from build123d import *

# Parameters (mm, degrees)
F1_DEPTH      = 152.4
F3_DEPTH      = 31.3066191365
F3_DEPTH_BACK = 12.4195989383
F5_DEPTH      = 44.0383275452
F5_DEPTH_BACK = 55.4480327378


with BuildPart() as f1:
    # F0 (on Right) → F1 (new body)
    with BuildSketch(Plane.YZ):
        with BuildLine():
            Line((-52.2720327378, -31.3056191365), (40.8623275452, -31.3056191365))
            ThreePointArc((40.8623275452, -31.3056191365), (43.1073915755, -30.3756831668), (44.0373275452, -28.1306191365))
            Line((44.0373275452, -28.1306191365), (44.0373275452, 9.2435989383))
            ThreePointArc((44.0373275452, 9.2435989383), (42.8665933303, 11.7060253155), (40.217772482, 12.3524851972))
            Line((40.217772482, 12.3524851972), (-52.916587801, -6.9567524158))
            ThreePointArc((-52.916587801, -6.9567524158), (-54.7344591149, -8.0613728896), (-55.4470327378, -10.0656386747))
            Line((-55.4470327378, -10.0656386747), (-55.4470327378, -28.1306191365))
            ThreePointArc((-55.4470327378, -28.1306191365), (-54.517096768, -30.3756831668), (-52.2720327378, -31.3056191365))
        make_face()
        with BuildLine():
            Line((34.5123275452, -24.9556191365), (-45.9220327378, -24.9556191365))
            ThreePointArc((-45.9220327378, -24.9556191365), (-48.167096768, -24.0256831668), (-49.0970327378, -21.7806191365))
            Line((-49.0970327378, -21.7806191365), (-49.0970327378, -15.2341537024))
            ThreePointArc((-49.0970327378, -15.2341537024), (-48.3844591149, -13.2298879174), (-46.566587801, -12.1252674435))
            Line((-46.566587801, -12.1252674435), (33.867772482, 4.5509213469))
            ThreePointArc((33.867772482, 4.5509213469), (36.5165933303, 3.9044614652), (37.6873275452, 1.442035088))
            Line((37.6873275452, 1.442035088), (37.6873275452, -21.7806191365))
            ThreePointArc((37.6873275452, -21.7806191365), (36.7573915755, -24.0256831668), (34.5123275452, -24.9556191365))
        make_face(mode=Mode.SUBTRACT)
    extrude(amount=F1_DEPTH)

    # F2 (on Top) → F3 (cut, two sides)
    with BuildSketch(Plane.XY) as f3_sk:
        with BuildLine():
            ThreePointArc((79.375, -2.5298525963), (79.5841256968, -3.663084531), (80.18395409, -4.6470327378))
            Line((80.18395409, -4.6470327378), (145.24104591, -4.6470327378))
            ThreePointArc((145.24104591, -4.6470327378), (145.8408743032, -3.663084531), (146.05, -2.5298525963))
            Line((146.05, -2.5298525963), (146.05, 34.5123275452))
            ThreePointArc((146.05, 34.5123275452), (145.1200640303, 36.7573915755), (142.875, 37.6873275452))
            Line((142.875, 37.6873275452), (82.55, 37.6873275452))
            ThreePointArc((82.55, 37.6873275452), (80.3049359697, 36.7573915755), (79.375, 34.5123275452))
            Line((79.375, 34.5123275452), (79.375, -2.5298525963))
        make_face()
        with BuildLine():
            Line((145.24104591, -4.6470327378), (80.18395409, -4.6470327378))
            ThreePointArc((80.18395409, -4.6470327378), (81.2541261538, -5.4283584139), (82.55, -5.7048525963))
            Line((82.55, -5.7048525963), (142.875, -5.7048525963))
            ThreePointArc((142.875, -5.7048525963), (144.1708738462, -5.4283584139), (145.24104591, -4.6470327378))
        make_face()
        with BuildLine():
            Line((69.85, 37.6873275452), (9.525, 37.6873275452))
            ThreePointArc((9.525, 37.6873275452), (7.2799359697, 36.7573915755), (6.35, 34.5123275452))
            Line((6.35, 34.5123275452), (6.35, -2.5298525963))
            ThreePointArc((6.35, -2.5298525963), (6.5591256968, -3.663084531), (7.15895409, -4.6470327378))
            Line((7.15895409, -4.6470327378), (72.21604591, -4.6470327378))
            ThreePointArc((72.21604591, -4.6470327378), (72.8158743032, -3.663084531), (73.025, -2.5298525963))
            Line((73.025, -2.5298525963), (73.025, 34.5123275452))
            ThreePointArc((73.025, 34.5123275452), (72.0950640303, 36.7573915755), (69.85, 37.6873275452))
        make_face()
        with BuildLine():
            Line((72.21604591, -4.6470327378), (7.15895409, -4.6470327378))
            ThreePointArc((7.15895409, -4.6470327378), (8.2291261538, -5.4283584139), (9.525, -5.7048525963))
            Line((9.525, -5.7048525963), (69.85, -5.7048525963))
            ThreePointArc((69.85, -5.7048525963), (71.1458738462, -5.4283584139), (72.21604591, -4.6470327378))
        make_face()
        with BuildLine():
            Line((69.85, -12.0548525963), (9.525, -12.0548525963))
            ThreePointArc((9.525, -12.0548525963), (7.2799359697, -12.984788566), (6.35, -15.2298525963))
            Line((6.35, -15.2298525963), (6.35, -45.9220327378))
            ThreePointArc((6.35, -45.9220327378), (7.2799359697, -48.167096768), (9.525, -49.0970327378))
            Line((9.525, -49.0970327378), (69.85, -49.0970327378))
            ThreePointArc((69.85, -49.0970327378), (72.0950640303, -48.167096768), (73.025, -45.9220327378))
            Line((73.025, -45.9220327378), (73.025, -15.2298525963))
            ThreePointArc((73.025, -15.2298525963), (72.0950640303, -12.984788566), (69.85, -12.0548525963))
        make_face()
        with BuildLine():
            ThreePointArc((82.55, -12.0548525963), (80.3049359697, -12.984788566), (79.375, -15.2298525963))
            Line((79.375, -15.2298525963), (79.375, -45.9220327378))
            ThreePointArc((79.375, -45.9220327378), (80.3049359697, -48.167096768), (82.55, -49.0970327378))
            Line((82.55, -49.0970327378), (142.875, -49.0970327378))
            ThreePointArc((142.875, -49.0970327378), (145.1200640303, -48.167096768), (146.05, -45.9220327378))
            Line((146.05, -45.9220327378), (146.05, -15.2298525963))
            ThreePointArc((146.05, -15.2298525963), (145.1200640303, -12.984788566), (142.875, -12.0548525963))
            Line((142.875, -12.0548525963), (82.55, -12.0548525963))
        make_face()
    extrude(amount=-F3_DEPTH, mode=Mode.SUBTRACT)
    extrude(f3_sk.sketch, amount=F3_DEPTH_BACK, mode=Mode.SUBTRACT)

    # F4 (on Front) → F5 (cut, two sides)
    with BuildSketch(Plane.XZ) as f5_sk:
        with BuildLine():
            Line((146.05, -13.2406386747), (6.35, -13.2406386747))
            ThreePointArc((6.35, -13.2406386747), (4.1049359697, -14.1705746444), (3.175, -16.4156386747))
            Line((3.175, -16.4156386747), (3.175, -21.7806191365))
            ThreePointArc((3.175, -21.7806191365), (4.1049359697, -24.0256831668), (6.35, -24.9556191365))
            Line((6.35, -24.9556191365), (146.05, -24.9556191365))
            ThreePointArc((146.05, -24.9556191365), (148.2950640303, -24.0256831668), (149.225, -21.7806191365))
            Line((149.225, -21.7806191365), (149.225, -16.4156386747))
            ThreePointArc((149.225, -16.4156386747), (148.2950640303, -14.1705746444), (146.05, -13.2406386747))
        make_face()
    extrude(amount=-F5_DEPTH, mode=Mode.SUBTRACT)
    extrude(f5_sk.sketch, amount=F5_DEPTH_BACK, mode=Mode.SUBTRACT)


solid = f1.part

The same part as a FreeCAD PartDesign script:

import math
import FreeCAD as App
import Part
import Sketcher
Q = App.Units.Quantity

doc = App.newDocument("Part")
body = doc.addObject("PartDesign::Body", "Body")

# Sketch on YZ plane
sketch1 = body.newObject("Sketcher::SketchObject", "Sketch")
sketch1.AttachmentSupport = (doc.getObject("YZ_Plane"), [""])
sketch1.MapMode = "FlatFace"
sketch1.addGeometry(Part.LineSegment(App.Vector(-52.272033, -31.305619, 0), App.Vector(40.862328, -31.305619, 0)), False)
sketch1.addGeometry(Part.ArcOfCircle(Part.Circle(App.Vector(40.862328, -28.130619, 0), App.Vector(0, 0, 1), 3.175), math.radians(-90), math.radians(0)), False)
sketch1.addGeometry(Part.LineSegment(App.Vector(44.037328, -28.130619, 0), App.Vector(44.037328, 9.243599, 0)), False)
sketch1.addGeometry(Part.ArcOfCircle(Part.Circle(App.Vector(40.862328, 9.243599, 0), App.Vector(0, 0, 1), 3.175), math.radians(0), math.radians(101.713)), False)
sketch1.addGeometry(Part.LineSegment(App.Vector(40.217772, 12.352485, 0), App.Vector(-52.916588, -6.956752, 0)), False)
sketch1.addGeometry(Part.ArcOfCircle(Part.Circle(App.Vector(-52.272033, -10.065639, 0), App.Vector(0, 0, 1), 3.175), math.radians(101.713), math.radians(180)), False)
sketch1.addGeometry(Part.LineSegment(App.Vector(-55.447033, -10.065639, 0), App.Vector(-55.447033, -28.130619, 0)), False)
sketch1.addGeometry(Part.ArcOfCircle(Part.Circle(App.Vector(-52.272033, -28.130619, 0), App.Vector(0, 0, 1), 3.175), math.radians(180), math.radians(270)), False)
sketch1.addGeometry(Part.ArcOfCircle(Part.Circle(App.Vector(34.512328, -21.780619, 0), App.Vector(0, 0, 1), 3.175), math.radians(-90), math.radians(0)), False)
sketch1.addGeometry(Part.LineSegment(App.Vector(34.512328, -24.955619, 0), App.Vector(-45.922033, -24.955619, 0)), False)
sketch1.addGeometry(Part.ArcOfCircle(Part.Circle(App.Vector(-45.922033, -21.780619, 0), App.Vector(0, 0, 1), 3.175), math.radians(-180), math.radians(-90)), False)
sketch1.addGeometry(Part.LineSegment(App.Vector(-49.097033, -21.780619, 0), App.Vector(-49.097033, -15.234154, 0)), False)
sketch1.addGeometry(Part.ArcOfCircle(Part.Circle(App.Vector(-45.922033, -15.234154, 0), App.Vector(0, 0, 1), 3.175), math.radians(101.713), math.radians(180)), False)
sketch1.addGeometry(Part.LineSegment(App.Vector(-46.566588, -12.125267, 0), App.Vector(33.867772, 4.550921, 0)), False)
sketch1.addGeometry(Part.ArcOfCircle(Part.Circle(App.Vector(34.512328, 1.442035, 0), App.Vector(0, 0, 1), 3.175), math.radians(0), math.radians(101.713)), False)
sketch1.addGeometry(Part.LineSegment(App.Vector(37.687328, 1.442035, 0), App.Vector(37.687328, -21.780619, 0)), False)
sketch1.addConstraint(Sketcher.Constraint("Tangent", 0, 2, 1, 1))
sketch1.addConstraint(Sketcher.Constraint("Tangent", 1, 2, 2, 1))
sketch1.addConstraint(Sketcher.Constraint("Tangent", 2, 2, 3, 1))
sketch1.addConstraint(Sketcher.Constraint("Tangent", 3, 2, 4, 1))
sketch1.addConstraint(Sketcher.Constraint("Tangent", 4, 2, 5, 1))
sketch1.addConstraint(Sketcher.Constraint("Tangent", 5, 2, 6, 1))
sketch1.addConstraint(Sketcher.Constraint("Tangent", 6, 2, 7, 1))
sketch1.addConstraint(Sketcher.Constraint("Tangent", 7, 2, 0, 1))
sketch1.addConstraint(Sketcher.Constraint("Tangent", 8, 1, 9, 1))
sketch1.addConstraint(Sketcher.Constraint("Tangent", 9, 2, 10, 2))
sketch1.addConstraint(Sketcher.Constraint("Tangent", 10, 1, 11, 1))
sketch1.addConstraint(Sketcher.Constraint("Tangent", 11, 2, 12, 2))
sketch1.addConstraint(Sketcher.Constraint("Tangent", 12, 1, 13, 1))
sketch1.addConstraint(Sketcher.Constraint("Tangent", 13, 2, 14, 2))
sketch1.addConstraint(Sketcher.Constraint("Tangent", 14, 1, 15, 1))
sketch1.addConstraint(Sketcher.Constraint("Tangent", 15, 2, 8, 2))
sketch1.addConstraint(Sketcher.Constraint("Horizontal", 0))
sketch1.addConstraint(Sketcher.Constraint("Vertical", 2))
sketch1.addConstraint(Sketcher.Constraint("Vertical", 6))
sketch1.addConstraint(Sketcher.Constraint("Horizontal", 9))
sketch1.addConstraint(Sketcher.Constraint("Vertical", 11))
sketch1.addConstraint(Sketcher.Constraint("Vertical", 15))
sketch1.addConstraint(Sketcher.Constraint("Equal", 1, 3))
sketch1.addConstraint(Sketcher.Constraint("Equal", 3, 5))
sketch1.addConstraint(Sketcher.Constraint("Equal", 5, 7))
sketch1.addConstraint(Sketcher.Constraint("Equal", 7, 8))
sketch1.addConstraint(Sketcher.Constraint("Equal", 8, 10))
sketch1.addConstraint(Sketcher.Constraint("Equal", 10, 12))
sketch1.addConstraint(Sketcher.Constraint("Equal", 12, 14))
sketch1.addConstraint(Sketcher.Constraint("Parallel", 4, 13))
sketch1.addConstraint(Sketcher.Constraint("Radius", 1, Q("0.125 in")))
sketch1.addConstraint(Sketcher.Constraint("DistanceX", 8, 3, 1, 3, Q("0.25 in")))
sketch1.addConstraint(Sketcher.Constraint("DistanceY", 1, 3, 8, 3, Q("0.25 in")))
sketch1.addConstraint(Sketcher.Constraint("DistanceX", 7, 3, 10, 3, Q("0.25 in")))
sketch1.addConstraint(Sketcher.Constraint("DistanceX", 0, 1, 0, 2, Q("93.13436 mm")))
sketch1.addConstraint(Sketcher.Constraint("DistanceY", 2, 1, 2, 2, Q("37.374218 mm")))
sketch1.addConstraint(Sketcher.Constraint("DistanceY", 6, 2, 6, 1, Q("18.06498 mm")))
sketch1.addConstraint(Sketcher.Constraint("DistanceY", -1, 1, 3, 3, Q("9.243599 mm")))
sketch1.addConstraint(Sketcher.Constraint("DistanceY", 12, 3, 4, 2, Q("8.277401 mm")))
sketch1.addConstraint(Sketcher.Constraint("DistanceX", -1, 1, 1, 3, Q("40.862328 mm")))
pad1 = body.newObject("PartDesign::Pad", "Pad")
pad1.Profile = sketch1
pad1.Length = Q("6 in")

# Sketch on XY plane
sketch2 = body.newObject("Sketcher::SketchObject", "Sketch001")
sketch2.AttachmentSupport = (doc.getObject("XY_Plane"), [""])
sketch2.MapMode = "FlatFace"
sketch2.addGeometry(Part.ArcOfCircle(Part.Circle(App.Vector(82.55, -2.529853, 0), App.Vector(0, 0, 1), 3.175), math.radians(180), math.radians(221.822748)), False)
sketch2.addGeometry(Part.ArcOfCircle(Part.Circle(App.Vector(82.55, -2.529853, 0), App.Vector(0, 0, 1), 3.175), math.radians(-138.177252), math.radians(-90)), False)
sketch2.addGeometry(Part.LineSegment(App.Vector(82.55, -5.704853, 0), App.Vector(142.875, -5.704853, 0)), False)
sketch2.addGeometry(Part.ArcOfCircle(Part.Circle(App.Vector(142.875, -2.529853, 0), App.Vector(0, 0, 1), 3.175), math.radians(-90), math.radians(-41.822748)), False)
sketch2.addGeometry(Part.ArcOfCircle(Part.Circle(App.Vector(142.875, -2.529853, 0), App.Vector(0, 0, 1), 3.175), math.radians(-41.822748), math.radians(0)), False)
sketch2.addGeometry(Part.LineSegment(App.Vector(146.05, -2.529853, 0), App.Vector(146.05, 34.512328, 0)), False)
sketch2.addGeometry(Part.ArcOfCircle(Part.Circle(App.Vector(142.875, 34.512328, 0), App.Vector(0, 0, 1), 3.175), math.radians(0), math.radians(90)), False)
sketch2.addGeometry(Part.LineSegment(App.Vector(142.875, 37.687328, 0), App.Vector(82.55, 37.687328, 0)), False)
sketch2.addGeometry(Part.ArcOfCircle(Part.Circle(App.Vector(82.55, 34.512328, 0), App.Vector(0, 0, 1), 3.175), math.radians(90), math.radians(180)), False)
sketch2.addGeometry(Part.LineSegment(App.Vector(79.375, 34.512328, 0), App.Vector(79.375, -2.529853, 0)), False)
sketch2.addGeometry(Part.LineSegment(App.Vector(69.85, 37.687328, 0), App.Vector(9.525, 37.687328, 0)), False)
sketch2.addGeometry(Part.ArcOfCircle(Part.Circle(App.Vector(9.525, 34.512328, 0), App.Vector(0, 0, 1), 3.175), math.radians(90), math.radians(180)), False)
sketch2.addGeometry(Part.LineSegment(App.Vector(6.35, 34.512328, 0), App.Vector(6.35, -2.529853, 0)), False)
sketch2.addGeometry(Part.ArcOfCircle(Part.Circle(App.Vector(9.525, -2.529853, 0), App.Vector(0, 0, 1), 3.175), math.radians(180), math.radians(221.822748)), False)
sketch2.addGeometry(Part.ArcOfCircle(Part.Circle(App.Vector(9.525, -2.529853, 0), App.Vector(0, 0, 1), 3.175), math.radians(-138.177252), math.radians(-90)), False)
sketch2.addGeometry(Part.LineSegment(App.Vector(9.525, -5.704853, 0), App.Vector(69.85, -5.704853, 0)), False)
sketch2.addGeometry(Part.ArcOfCircle(Part.Circle(App.Vector(69.85, -2.529853, 0), App.Vector(0, 0, 1), 3.175), math.radians(-90), math.radians(-41.822748)), False)
sketch2.addGeometry(Part.ArcOfCircle(Part.Circle(App.Vector(69.85, -2.529853, 0), App.Vector(0, 0, 1), 3.175), math.radians(-41.822748), math.radians(0)), False)
sketch2.addGeometry(Part.LineSegment(App.Vector(73.025, -2.529853, 0), App.Vector(73.025, 34.512328, 0)), False)
sketch2.addGeometry(Part.ArcOfCircle(Part.Circle(App.Vector(69.85, 34.512328, 0), App.Vector(0, 0, 1), 3.175), math.radians(0), math.radians(90)), False)
sketch2.addGeometry(Part.LineSegment(App.Vector(69.85, -12.054853, 0), App.Vector(9.525, -12.054853, 0)), False)
sketch2.addGeometry(Part.ArcOfCircle(Part.Circle(App.Vector(9.525, -15.229853, 0), App.Vector(0, 0, 1), 3.175), math.radians(90), math.radians(180)), False)
sketch2.addGeometry(Part.LineSegment(App.Vector(6.35, -15.229853, 0), App.Vector(6.35, -45.922033, 0)), False)
sketch2.addGeometry(Part.ArcOfCircle(Part.Circle(App.Vector(9.525, -45.922033, 0), App.Vector(0, 0, 1), 3.175), math.radians(180), math.radians(270)), False)
sketch2.addGeometry(Part.LineSegment(App.Vector(9.525, -49.097033, 0), App.Vector(69.85, -49.097033, 0)), False)
sketch2.addGeometry(Part.ArcOfCircle(Part.Circle(App.Vector(69.85, -45.922033, 0), App.Vector(0, 0, 1), 3.175), math.radians(-90), math.radians(0)), False)
sketch2.addGeometry(Part.LineSegment(App.Vector(73.025, -45.922033, 0), App.Vector(73.025, -15.229853, 0)), False)
sketch2.addGeometry(Part.ArcOfCircle(Part.Circle(App.Vector(69.85, -15.229853, 0), App.Vector(0, 0, 1), 3.175), math.radians(0), math.radians(90)), False)
sketch2.addGeometry(Part.ArcOfCircle(Part.Circle(App.Vector(82.55, -15.229853, 0), App.Vector(0, 0, 1), 3.175), math.radians(90), math.radians(180)), False)
sketch2.addGeometry(Part.LineSegment(App.Vector(79.375, -15.229853, 0), App.Vector(79.375, -45.922033, 0)), False)
sketch2.addGeometry(Part.ArcOfCircle(Part.Circle(App.Vector(82.55, -45.922033, 0), App.Vector(0, 0, 1), 3.175), math.radians(180), math.radians(270)), False)
sketch2.addGeometry(Part.LineSegment(App.Vector(82.55, -49.097033, 0), App.Vector(142.875, -49.097033, 0)), False)
sketch2.addGeometry(Part.ArcOfCircle(Part.Circle(App.Vector(142.875, -45.922033, 0), App.Vector(0, 0, 1), 3.175), math.radians(-90), math.radians(0)), False)
sketch2.addGeometry(Part.LineSegment(App.Vector(146.05, -45.922033, 0), App.Vector(146.05, -15.229853, 0)), False)
sketch2.addGeometry(Part.ArcOfCircle(Part.Circle(App.Vector(142.875, -15.229853, 0), App.Vector(0, 0, 1), 3.175), math.radians(0), math.radians(90)), False)
sketch2.addGeometry(Part.LineSegment(App.Vector(142.875, -12.054853, 0), App.Vector(82.55, -12.054853, 0)), False)
sketch2.addConstraint(Sketcher.Constraint("Tangent", 0, 2, 1, 1))
sketch2.addConstraint(Sketcher.Constraint("Tangent", 1, 2, 2, 1))
sketch2.addConstraint(Sketcher.Constraint("Tangent", 2, 2, 3, 1))
sketch2.addConstraint(Sketcher.Constraint("Tangent", 3, 2, 4, 1))
sketch2.addConstraint(Sketcher.Constraint("Tangent", 4, 2, 5, 1))
sketch2.addConstraint(Sketcher.Constraint("Tangent", 5, 2, 6, 1))
sketch2.addConstraint(Sketcher.Constraint("Tangent", 6, 2, 7, 1))
sketch2.addConstraint(Sketcher.Constraint("Tangent", 7, 2, 8, 1))
sketch2.addConstraint(Sketcher.Constraint("Tangent", 8, 2, 9, 1))
sketch2.addConstraint(Sketcher.Constraint("Tangent", 9, 2, 0, 1))
sketch2.addConstraint(Sketcher.Constraint("Tangent", 10, 2, 11, 1))
sketch2.addConstraint(Sketcher.Constraint("Tangent", 11, 2, 12, 1))
sketch2.addConstraint(Sketcher.Constraint("Tangent", 12, 2, 13, 1))
sketch2.addConstraint(Sketcher.Constraint("Tangent", 13, 2, 14, 1))
sketch2.addConstraint(Sketcher.Constraint("Tangent", 14, 2, 15, 1))
sketch2.addConstraint(Sketcher.Constraint("Tangent", 15, 2, 16, 1))
sketch2.addConstraint(Sketcher.Constraint("Tangent", 16, 2, 17, 1))
sketch2.addConstraint(Sketcher.Constraint("Tangent", 17, 2, 18, 1))
sketch2.addConstraint(Sketcher.Constraint("Tangent", 18, 2, 19, 1))
sketch2.addConstraint(Sketcher.Constraint("Tangent", 19, 2, 10, 1))
sketch2.addConstraint(Sketcher.Constraint("Tangent", 20, 2, 21, 1))
sketch2.addConstraint(Sketcher.Constraint("Tangent", 21, 2, 22, 1))
sketch2.addConstraint(Sketcher.Constraint("Tangent", 22, 2, 23, 1))
sketch2.addConstraint(Sketcher.Constraint("Tangent", 23, 2, 24, 1))
sketch2.addConstraint(Sketcher.Constraint("Tangent", 24, 2, 25, 1))
sketch2.addConstraint(Sketcher.Constraint("Tangent", 25, 2, 26, 1))
sketch2.addConstraint(Sketcher.Constraint("Tangent", 26, 2, 27, 1))
sketch2.addConstraint(Sketcher.Constraint("Tangent", 27, 2, 20, 1))
sketch2.addConstraint(Sketcher.Constraint("Tangent", 28, 2, 29, 1))
sketch2.addConstraint(Sketcher.Constraint("Tangent", 29, 2, 30, 1))
sketch2.addConstraint(Sketcher.Constraint("Tangent", 30, 2, 31, 1))
sketch2.addConstraint(Sketcher.Constraint("Tangent", 31, 2, 32, 1))
sketch2.addConstraint(Sketcher.Constraint("Tangent", 32, 2, 33, 1))
sketch2.addConstraint(Sketcher.Constraint("Tangent", 33, 2, 34, 1))
sketch2.addConstraint(Sketcher.Constraint("Tangent", 34, 2, 35, 1))
sketch2.addConstraint(Sketcher.Constraint("Tangent", 35, 2, 28, 1))
sketch2.addConstraint(Sketcher.Constraint("Horizontal", 2))
sketch2.addConstraint(Sketcher.Constraint("Vertical", 5))
sketch2.addConstraint(Sketcher.Constraint("Horizontal", 7))
sketch2.addConstraint(Sketcher.Constraint("Vertical", 9))
sketch2.addConstraint(Sketcher.Constraint("Horizontal", 10))
sketch2.addConstraint(Sketcher.Constraint("Vertical", 12))
sketch2.addConstraint(Sketcher.Constraint("Horizontal", 15))
sketch2.addConstraint(Sketcher.Constraint("Vertical", 18))
sketch2.addConstraint(Sketcher.Constraint("Horizontal", 20))
sketch2.addConstraint(Sketcher.Constraint("Vertical", 22))
sketch2.addConstraint(Sketcher.Constraint("Horizontal", 24))
sketch2.addConstraint(Sketcher.Constraint("Vertical", 26))
sketch2.addConstraint(Sketcher.Constraint("Vertical", 29))
sketch2.addConstraint(Sketcher.Constraint("Horizontal", 31))
sketch2.addConstraint(Sketcher.Constraint("Vertical", 33))
sketch2.addConstraint(Sketcher.Constraint("Horizontal", 35))
sketch2.addConstraint(Sketcher.Constraint("Equal", 0, 1))
sketch2.addConstraint(Sketcher.Constraint("Equal", 1, 3))
sketch2.addConstraint(Sketcher.Constraint("Equal", 3, 4))
sketch2.addConstraint(Sketcher.Constraint("Equal", 4, 6))
sketch2.addConstraint(Sketcher.Constraint("Equal", 6, 8))
sketch2.addConstraint(Sketcher.Constraint("Equal", 8, 11))
sketch2.addConstraint(Sketcher.Constraint("Equal", 11, 13))
sketch2.addConstraint(Sketcher.Constraint("Equal", 13, 14))
sketch2.addConstraint(Sketcher.Constraint("Equal", 14, 16))
sketch2.addConstraint(Sketcher.Constraint("Equal", 16, 17))
sketch2.addConstraint(Sketcher.Constraint("Equal", 17, 19))
sketch2.addConstraint(Sketcher.Constraint("Equal", 19, 21))
sketch2.addConstraint(Sketcher.Constraint("Equal", 21, 23))
sketch2.addConstraint(Sketcher.Constraint("Equal", 23, 25))
sketch2.addConstraint(Sketcher.Constraint("Equal", 25, 27))
sketch2.addConstraint(Sketcher.Constraint("Equal", 27, 28))
sketch2.addConstraint(Sketcher.Constraint("Equal", 28, 30))
sketch2.addConstraint(Sketcher.Constraint("Equal", 30, 32))
sketch2.addConstraint(Sketcher.Constraint("Equal", 32, 34))
sketch2.addConstraint(Sketcher.Constraint("Horizontal", 8, 3, 11, 3))
sketch2.addConstraint(Sketcher.Constraint("Horizontal", 4, 3, 13, 3))
sketch2.addConstraint(Sketcher.Constraint("Horizontal", 27, 3, 28, 3))
sketch2.addConstraint(Sketcher.Constraint("Horizontal", 25, 3, 30, 3))
sketch2.addConstraint(Sketcher.Constraint("Horizontal", 0, 2, 3, 2))
sketch2.addConstraint(Sketcher.Constraint("Horizontal", 3, 2, 13, 2))
sketch2.addConstraint(Sketcher.Constraint("Horizontal", 13, 2, 16, 2))
sketch2.addConstraint(Sketcher.Constraint("Vertical", 14, 3, 21, 3))
sketch2.addConstraint(Sketcher.Constraint("Vertical", 19, 3, 25, 3))
sketch2.addConstraint(Sketcher.Constraint("Vertical", 8, 3, 28, 3))
sketch2.addConstraint(Sketcher.Constraint("Vertical", 6, 3, 32, 3))
sketch2.addConstraint(Sketcher.Constraint("Equal", 7, 10))
sketch2.addConstraint(Sketcher.Constraint("Radius", 0, Q("0.125 in")))
sketch2.addConstraint(Sketcher.Constraint("DistanceX", 16, 3, 0, 3, Q("0.5 in")))
sketch2.addConstraint(Sketcher.Constraint("DistanceY", 21, 3, 13, 3, Q("0.5 in")))
sketch2.addConstraint(Sketcher.Constraint("DistanceX", 2, 1, 2, 2, Q("2.375 in")))
sketch2.addConstraint(Sketcher.Constraint("DistanceX", -1, 1, 0, 3, Q("3.25 in")))
sketch2.addConstraint(Sketcher.Constraint("DistanceY", 31, 2, 3, 2, Q("1.75 in")))
sketch2.addConstraint(Sketcher.Constraint("DistanceY", 5, 1, 5, 2, Q("37.04218 mm")))
sketch2.addConstraint(Sketcher.Constraint("DistanceY", 22, 2, 22, 1, Q("30.69218 mm")))
sketch2.addConstraint(Sketcher.Constraint("DistanceY", 0, 3, -1, 1, Q("2.529853 mm")))
pocket1 = body.newObject("PartDesign::Pocket", "Pocket")
pocket1.Profile = sketch2
pocket1.Type = "ThroughAll"
pocket1.Midplane = True

# Sketch on XZ plane
sketch3 = body.newObject("Sketcher::SketchObject", "Sketch002")
sketch3.AttachmentSupport = (doc.getObject("XZ_Plane"), [""])
sketch3.MapMode = "FlatFace"
sketch3.addGeometry(Part.LineSegment(App.Vector(146.05, -13.240639, 0), App.Vector(6.35, -13.240639, 0)), False)
sketch3.addGeometry(Part.ArcOfCircle(Part.Circle(App.Vector(6.35, -16.415639, 0), App.Vector(0, 0, 1), 3.175), math.radians(90), math.radians(180)), False)
sketch3.addGeometry(Part.LineSegment(App.Vector(3.175, -16.415639, 0), App.Vector(3.175, -21.780619, 0)), False)
sketch3.addGeometry(Part.ArcOfCircle(Part.Circle(App.Vector(6.35, -21.780619, 0), App.Vector(0, 0, 1), 3.175), math.radians(180), math.radians(270)), False)
sketch3.addGeometry(Part.LineSegment(App.Vector(6.35, -24.955619, 0), App.Vector(146.05, -24.955619, 0)), False)
sketch3.addGeometry(Part.ArcOfCircle(Part.Circle(App.Vector(146.05, -21.780619, 0), App.Vector(0, 0, 1), 3.175), math.radians(-90), math.radians(0)), False)
sketch3.addGeometry(Part.LineSegment(App.Vector(149.225, -21.780619, 0), App.Vector(149.225, -16.415639, 0)), False)
sketch3.addGeometry(Part.ArcOfCircle(Part.Circle(App.Vector(146.05, -16.415639, 0), App.Vector(0, 0, 1), 3.175), math.radians(0), math.radians(90)), False)
sketch3.addConstraint(Sketcher.Constraint("Tangent", 0, 2, 1, 1))
sketch3.addConstraint(Sketcher.Constraint("Tangent", 1, 2, 2, 1))
sketch3.addConstraint(Sketcher.Constraint("Tangent", 2, 2, 3, 1))
sketch3.addConstraint(Sketcher.Constraint("Tangent", 3, 2, 4, 1))
sketch3.addConstraint(Sketcher.Constraint("Tangent", 4, 2, 5, 1))
sketch3.addConstraint(Sketcher.Constraint("Tangent", 5, 2, 6, 1))
sketch3.addConstraint(Sketcher.Constraint("Tangent", 6, 2, 7, 1))
sketch3.addConstraint(Sketcher.Constraint("Tangent", 7, 2, 0, 1))
sketch3.addConstraint(Sketcher.Constraint("Horizontal", 0))
sketch3.addConstraint(Sketcher.Constraint("Vertical", 2))
sketch3.addConstraint(Sketcher.Constraint("Horizontal", 4))
sketch3.addConstraint(Sketcher.Constraint("Vertical", 6))
sketch3.addConstraint(Sketcher.Constraint("Equal", 1, 3))
sketch3.addConstraint(Sketcher.Constraint("Equal", 3, 5))
sketch3.addConstraint(Sketcher.Constraint("Equal", 5, 7))
sketch3.addConstraint(Sketcher.Constraint("DistanceX", 0, 2, 0, 1, Q("5.5 in")))
sketch3.addConstraint(Sketcher.Constraint("Radius", 1, Q("0.125 in")))
sketch3.addConstraint(Sketcher.Constraint("DistanceX", -1, 1, 1, 3, Q("0.25 in")))
sketch3.addConstraint(Sketcher.Constraint("DistanceY", 2, 2, 2, 1, Q("5.36498 mm")))
sketch3.addConstraint(Sketcher.Constraint("DistanceY", 1, 3, -1, 1, Q("16.415639 mm")))
pocket2 = body.newObject("PartDesign::Pocket", "Pocket001")
pocket2.Profile = sketch3
pocket2.Type = "ThroughAll"
pocket2.Midplane = True

doc.recompute()
